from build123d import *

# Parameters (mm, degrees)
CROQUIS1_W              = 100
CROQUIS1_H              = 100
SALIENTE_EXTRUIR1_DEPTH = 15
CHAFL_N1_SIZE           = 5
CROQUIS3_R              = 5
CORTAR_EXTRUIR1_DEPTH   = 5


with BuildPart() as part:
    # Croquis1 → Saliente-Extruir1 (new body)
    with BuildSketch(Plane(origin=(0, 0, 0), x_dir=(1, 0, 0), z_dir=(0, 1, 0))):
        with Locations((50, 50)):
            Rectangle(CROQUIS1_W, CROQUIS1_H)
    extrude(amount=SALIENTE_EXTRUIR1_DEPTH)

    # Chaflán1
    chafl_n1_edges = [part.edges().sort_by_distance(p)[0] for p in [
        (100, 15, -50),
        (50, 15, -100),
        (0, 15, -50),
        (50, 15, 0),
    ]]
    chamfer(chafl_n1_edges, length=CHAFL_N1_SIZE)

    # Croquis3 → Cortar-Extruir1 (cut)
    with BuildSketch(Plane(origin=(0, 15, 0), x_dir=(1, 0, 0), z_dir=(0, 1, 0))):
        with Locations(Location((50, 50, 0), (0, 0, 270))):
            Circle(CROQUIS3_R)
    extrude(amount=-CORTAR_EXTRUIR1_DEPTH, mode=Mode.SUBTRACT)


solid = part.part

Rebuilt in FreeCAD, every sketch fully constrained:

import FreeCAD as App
import Part
import Sketcher

V = App.Vector
Q = App.Units.Quantity


def edges_at(feature, points):
    """Names of the edges that pass closest to the given points."""
    edges = feature.Shape.Edges
    near = lambda p: min(range(len(edges)), key=lambda i: edges[i].distToShape(Part.Vertex(*p))[0])
    return sorted({f"Edge{near(p) + 1}" for p in points})

doc = App.newDocument("Part")
body = doc.addObject("PartDesign::Body", "Body")

# Sketch on XZ plane
sketch1 = body.newObject("Sketcher::SketchObject", "Sketch")
sketch1.AttachmentSupport = (doc.getObject("XZ_Plane"), [""])
sketch1.MapMode = "FlatFace"
sketch1.addGeometry([
    Part.LineSegment(V(0, -100, 0), V(0, 0, 0)),
    Part.LineSegment(V(0, 0, 0), V(100, 0, 0)),
    Part.LineSegment(V(100, 0, 0), V(100, -100, 0)),
    Part.LineSegment(V(100, -100, 0), V(0, -100, 0)),
], False)
sketch1.addConstraint([
    Sketcher.Constraint("Coincident", 0, 2, 1, 1),
    Sketcher.Constraint("Coincident", 1, 2, 2, 1),
    Sketcher.Constraint("Coincident", 2, 2, 3, 1),
    Sketcher.Constraint("Coincident", 3, 2, 0, 1),
    Sketcher.Constraint("Vertical", 0),
    Sketcher.Constraint("Horizontal", 1),
    Sketcher.Constraint("Vertical", 2),
    Sketcher.Constraint("Horizontal", 3),
    Sketcher.Constraint("Coincident", 0, 2, -1, 1),
    Sketcher.Constraint("Equal", 3, 0),
    Sketcher.Constraint("DistanceX", 1, 1, 1, 2, Q("100 mm")),
])
pad1 = body.newObject("PartDesign::Pad", "Pad")
pad1.Profile = sketch1
pad1.Length = 15
pad1.Reversed = True
doc.recompute()

chamfer = body.newObject("PartDesign::Chamfer", "Chamfer")
chamfer.Base = (pad1, edges_at(pad1, [
    (100, 15, -50),
    (50, 15, -100),
    (0, 15, -50),
    (50, 15, 0),
]))
chamfer.Size = 5

# Sketch on XZ plane
sketch2 = body.newObject("Sketcher::SketchObject", "Sketch001")
sketch2.AttachmentSupport = (doc.getObject("XZ_Plane"), [""])
sketch2.MapMode = "FlatFace"
sketch2.AttachmentOffset = App.Placement(V(0, 0, -15), App.Rotation())
sketch2.addGeometry(Part.Circle(V(50, -50, 0), V(0, 0, 1), 5), False)
sketch2.addConstraint([
    Sketcher.Constraint("Diameter", 0, Q("10 mm")),
    Sketcher.Constraint("DistanceX", -1, 1, 0, 3, Q("50 mm")),
    Sketcher.Constraint("DistanceY", 0, 3, -1, 1, Q("50 mm")),
])
pocket1 = body.newObject("PartDesign::Pocket", "Pocket")
pocket1.Profile = sketch2
pocket1.Length = 5
pocket1.Reversed = True

doc.recompute()
